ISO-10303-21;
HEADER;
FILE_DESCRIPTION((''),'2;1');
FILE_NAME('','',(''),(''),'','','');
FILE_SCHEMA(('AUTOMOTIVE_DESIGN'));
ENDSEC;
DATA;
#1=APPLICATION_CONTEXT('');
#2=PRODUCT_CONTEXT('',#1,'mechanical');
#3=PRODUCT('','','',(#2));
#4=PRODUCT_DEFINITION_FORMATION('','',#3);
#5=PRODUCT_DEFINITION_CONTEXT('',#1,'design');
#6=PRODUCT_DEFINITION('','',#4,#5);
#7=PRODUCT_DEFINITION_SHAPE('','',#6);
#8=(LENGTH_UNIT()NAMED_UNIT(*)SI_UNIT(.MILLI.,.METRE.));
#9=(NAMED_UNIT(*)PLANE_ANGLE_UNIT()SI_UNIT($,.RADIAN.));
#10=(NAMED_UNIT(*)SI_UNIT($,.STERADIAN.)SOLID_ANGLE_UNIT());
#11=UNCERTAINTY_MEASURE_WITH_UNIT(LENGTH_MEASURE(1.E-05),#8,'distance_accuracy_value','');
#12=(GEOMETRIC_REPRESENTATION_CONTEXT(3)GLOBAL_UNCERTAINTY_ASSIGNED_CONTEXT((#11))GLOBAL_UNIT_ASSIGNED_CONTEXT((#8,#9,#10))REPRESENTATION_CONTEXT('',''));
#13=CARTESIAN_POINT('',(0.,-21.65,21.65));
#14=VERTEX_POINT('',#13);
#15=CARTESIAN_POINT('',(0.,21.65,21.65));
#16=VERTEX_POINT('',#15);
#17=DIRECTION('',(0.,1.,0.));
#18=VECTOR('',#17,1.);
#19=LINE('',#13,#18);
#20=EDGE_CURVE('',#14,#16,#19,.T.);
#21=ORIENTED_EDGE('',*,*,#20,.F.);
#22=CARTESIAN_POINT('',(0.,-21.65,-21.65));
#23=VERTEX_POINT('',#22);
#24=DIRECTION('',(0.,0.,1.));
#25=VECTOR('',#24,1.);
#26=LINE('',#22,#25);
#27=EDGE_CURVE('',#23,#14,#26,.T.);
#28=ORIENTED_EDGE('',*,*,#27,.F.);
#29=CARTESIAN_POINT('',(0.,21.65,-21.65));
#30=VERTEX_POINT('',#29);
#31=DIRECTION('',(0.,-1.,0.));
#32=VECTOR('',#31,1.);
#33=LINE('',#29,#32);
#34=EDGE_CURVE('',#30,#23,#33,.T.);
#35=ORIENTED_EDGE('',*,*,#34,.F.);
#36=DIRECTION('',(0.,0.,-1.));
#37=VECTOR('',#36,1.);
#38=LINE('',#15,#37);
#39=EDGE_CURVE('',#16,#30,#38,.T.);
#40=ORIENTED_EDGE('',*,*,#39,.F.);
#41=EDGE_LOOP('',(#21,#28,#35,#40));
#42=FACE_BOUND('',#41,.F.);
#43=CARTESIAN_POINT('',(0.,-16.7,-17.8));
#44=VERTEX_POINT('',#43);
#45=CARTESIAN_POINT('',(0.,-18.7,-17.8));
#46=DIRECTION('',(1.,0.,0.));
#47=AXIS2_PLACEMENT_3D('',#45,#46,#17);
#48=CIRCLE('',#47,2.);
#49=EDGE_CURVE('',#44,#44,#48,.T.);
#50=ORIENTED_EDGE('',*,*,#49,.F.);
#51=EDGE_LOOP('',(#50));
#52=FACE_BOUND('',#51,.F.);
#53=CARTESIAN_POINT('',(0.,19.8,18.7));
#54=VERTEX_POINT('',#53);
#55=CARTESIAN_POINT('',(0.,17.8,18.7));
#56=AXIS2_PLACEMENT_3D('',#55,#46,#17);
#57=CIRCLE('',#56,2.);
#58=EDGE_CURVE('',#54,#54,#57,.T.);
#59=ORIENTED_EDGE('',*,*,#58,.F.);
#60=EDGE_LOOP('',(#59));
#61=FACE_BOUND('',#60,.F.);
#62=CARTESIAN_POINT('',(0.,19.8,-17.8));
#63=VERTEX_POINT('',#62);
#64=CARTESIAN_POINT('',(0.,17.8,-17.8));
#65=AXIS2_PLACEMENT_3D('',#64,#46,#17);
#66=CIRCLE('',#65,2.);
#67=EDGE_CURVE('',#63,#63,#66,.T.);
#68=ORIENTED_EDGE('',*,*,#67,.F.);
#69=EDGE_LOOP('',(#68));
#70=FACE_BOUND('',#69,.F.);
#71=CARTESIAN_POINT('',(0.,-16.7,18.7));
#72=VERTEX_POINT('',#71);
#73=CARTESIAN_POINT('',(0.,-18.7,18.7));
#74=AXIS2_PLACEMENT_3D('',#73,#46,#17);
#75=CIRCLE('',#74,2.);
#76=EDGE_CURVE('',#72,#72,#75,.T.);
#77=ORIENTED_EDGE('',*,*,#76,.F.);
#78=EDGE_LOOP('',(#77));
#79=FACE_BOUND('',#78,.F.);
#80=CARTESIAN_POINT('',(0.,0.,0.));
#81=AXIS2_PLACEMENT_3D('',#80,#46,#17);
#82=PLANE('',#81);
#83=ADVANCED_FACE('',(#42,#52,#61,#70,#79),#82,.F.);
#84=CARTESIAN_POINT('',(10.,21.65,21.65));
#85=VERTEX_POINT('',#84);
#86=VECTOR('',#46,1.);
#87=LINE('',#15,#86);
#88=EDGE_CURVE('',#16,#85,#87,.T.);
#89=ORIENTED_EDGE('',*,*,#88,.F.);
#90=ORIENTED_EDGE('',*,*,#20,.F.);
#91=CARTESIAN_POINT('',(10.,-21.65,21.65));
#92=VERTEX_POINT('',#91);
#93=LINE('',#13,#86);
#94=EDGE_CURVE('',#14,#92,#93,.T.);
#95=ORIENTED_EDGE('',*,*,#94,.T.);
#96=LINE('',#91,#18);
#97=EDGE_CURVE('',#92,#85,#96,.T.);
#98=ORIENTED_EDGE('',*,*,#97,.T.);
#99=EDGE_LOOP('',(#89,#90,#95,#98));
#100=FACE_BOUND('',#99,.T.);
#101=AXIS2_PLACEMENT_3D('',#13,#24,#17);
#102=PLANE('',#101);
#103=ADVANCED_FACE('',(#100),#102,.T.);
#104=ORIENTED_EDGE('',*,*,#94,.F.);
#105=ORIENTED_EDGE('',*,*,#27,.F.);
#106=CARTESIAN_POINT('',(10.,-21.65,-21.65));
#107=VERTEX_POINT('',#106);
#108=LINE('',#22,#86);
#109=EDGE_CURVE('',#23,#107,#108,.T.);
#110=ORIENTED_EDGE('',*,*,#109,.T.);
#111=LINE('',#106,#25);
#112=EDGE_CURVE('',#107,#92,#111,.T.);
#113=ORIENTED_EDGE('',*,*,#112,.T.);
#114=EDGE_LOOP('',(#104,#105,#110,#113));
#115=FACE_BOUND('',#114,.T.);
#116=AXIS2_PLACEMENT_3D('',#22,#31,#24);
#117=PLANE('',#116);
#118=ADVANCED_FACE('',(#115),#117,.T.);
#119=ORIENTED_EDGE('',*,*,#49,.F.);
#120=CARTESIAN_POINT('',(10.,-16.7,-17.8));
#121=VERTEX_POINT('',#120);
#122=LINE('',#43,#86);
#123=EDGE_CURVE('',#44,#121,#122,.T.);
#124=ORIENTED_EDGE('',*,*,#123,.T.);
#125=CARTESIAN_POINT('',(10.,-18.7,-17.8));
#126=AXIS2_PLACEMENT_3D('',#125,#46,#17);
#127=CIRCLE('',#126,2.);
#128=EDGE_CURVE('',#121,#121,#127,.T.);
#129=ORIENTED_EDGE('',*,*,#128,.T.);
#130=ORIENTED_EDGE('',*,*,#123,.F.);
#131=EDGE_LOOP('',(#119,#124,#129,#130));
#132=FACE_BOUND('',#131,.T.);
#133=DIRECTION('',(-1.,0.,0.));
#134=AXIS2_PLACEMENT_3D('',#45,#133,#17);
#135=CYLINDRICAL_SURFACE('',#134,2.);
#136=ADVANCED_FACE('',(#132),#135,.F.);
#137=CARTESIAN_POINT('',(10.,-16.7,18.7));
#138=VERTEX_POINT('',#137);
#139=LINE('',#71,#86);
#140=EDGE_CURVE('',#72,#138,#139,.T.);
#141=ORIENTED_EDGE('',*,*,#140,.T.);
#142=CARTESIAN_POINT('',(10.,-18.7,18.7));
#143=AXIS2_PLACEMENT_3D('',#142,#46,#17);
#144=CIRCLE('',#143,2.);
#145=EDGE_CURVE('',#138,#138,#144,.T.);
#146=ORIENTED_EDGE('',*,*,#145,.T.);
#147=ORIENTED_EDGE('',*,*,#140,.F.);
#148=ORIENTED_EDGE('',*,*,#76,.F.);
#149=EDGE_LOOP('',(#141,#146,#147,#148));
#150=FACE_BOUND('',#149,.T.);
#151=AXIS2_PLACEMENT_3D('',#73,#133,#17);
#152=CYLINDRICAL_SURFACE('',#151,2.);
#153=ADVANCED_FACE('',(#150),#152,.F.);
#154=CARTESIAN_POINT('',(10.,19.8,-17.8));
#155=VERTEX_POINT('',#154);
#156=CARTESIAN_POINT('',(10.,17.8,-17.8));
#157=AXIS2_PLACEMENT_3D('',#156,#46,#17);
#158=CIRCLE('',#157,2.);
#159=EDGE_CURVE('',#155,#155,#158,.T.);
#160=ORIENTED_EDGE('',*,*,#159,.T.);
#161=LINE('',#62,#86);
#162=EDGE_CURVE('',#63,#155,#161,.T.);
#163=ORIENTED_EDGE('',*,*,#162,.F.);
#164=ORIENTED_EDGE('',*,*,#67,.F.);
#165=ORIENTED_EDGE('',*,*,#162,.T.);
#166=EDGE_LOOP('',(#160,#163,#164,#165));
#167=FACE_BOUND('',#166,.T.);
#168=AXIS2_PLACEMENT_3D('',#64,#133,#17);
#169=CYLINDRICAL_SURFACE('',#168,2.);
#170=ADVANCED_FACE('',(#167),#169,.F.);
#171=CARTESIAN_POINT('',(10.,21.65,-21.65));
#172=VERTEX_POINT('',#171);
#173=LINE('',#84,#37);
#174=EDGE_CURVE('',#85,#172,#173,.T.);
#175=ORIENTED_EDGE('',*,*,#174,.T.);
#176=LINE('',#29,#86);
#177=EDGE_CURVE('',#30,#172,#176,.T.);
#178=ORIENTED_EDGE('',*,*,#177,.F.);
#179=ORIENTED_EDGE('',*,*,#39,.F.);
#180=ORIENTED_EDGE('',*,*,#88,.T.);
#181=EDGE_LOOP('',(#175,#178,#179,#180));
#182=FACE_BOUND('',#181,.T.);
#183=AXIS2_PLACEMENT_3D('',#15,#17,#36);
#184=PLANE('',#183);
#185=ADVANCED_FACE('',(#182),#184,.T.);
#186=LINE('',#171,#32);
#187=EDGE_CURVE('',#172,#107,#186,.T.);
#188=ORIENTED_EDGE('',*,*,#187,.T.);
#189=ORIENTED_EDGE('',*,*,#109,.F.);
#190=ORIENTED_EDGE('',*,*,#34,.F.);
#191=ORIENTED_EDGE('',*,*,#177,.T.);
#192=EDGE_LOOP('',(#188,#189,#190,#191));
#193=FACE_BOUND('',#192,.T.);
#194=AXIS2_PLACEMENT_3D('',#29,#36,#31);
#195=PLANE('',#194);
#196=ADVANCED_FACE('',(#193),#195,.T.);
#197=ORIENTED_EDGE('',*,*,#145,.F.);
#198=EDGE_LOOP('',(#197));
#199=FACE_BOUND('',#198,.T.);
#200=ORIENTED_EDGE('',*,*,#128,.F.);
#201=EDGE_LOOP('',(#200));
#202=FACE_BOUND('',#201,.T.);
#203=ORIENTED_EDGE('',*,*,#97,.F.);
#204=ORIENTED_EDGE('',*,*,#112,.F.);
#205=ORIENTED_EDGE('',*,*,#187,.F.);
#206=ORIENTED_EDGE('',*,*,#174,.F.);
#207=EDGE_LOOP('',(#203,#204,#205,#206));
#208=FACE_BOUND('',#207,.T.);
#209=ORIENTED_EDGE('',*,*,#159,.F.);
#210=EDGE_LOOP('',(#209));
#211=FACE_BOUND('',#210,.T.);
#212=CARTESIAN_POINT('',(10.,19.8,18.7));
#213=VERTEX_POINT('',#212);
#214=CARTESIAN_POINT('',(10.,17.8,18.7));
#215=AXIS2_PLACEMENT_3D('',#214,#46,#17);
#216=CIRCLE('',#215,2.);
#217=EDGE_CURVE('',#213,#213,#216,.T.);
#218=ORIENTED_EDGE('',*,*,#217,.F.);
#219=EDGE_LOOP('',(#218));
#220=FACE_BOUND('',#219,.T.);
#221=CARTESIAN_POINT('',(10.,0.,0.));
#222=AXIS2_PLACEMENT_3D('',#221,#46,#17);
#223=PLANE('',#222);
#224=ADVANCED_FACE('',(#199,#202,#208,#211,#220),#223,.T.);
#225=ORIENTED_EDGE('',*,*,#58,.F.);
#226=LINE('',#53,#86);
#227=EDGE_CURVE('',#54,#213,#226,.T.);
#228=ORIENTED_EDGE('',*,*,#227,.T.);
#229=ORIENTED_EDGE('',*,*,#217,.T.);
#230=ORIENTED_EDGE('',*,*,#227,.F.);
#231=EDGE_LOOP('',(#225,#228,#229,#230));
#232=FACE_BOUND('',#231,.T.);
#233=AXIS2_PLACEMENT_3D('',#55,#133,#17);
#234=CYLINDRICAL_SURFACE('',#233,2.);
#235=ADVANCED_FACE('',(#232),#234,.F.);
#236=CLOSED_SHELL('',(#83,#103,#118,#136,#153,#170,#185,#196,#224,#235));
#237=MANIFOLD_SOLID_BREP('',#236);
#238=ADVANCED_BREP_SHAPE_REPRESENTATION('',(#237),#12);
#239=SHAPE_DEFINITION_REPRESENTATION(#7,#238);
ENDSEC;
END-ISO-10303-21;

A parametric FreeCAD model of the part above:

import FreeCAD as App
import Part
import Sketcher
from FreeCAD import Vector


def add_polygon(sketch, points):
    """Adds a closed chain of lines whose ends are joined by coincident constraints."""
    first, n = sketch.GeometryCount, len(points)
    for a, b in zip(points, points[1:] + points[:1]):
        sketch.addGeometry(Part.LineSegment(App.Vector(*a, 0), App.Vector(*b, 0)), False)
    for i in range(n):
        sketch.addConstraint(Sketcher.Constraint("Coincident", first + i, 2, first + (i + 1) % n, 1))

doc = App.newDocument("Part")
body = doc.addObject("PartDesign::Body", "Body")

# Sketch on YZ plane
sketch1 = doc.addObject("Sketcher::SketchObject", "Sketch")
body.addObject(sketch1)
sketch1.AttachmentSupport = (doc.YZ_Plane, [""])
sketch1.MapMode = "FlatFace"
add_polygon(sketch1, [(21.6, 21.6), (-21.6, 21.6), (-21.6, -21.6), (21.6, -21.6)])  # lines 0-3
sketch1.addGeometry(Part.Circle(Vector(-18.7, -17.8, 0), Vector(0, 0, 1), 2), False)  # 4
sketch1.addGeometry(Part.Circle(Vector(17.8, -17.8, 0), Vector(0, 0, 1), 2), False)  # 5
sketch1.addGeometry(Part.Circle(Vector(-18.7, 18.7, 0), Vector(0, 0, 1), 2), False)  # 6
sketch1.addGeometry(Part.Circle(Vector(17.8, 18.7, 0), Vector(0, 0, 1), 2), False)  # 7
sketch1.addConstraint(Sketcher.Constraint("Horizontal", 0))
sketch1.addConstraint(Sketcher.Constraint("Vertical", 1))
sketch1.addConstraint(Sketcher.Constraint("Horizontal", 2))
sketch1.addConstraint(Sketcher.Constraint("Vertical", 3))
sketch1.addConstraint(Sketcher.Constraint("Equal", 4, 5))
sketch1.addConstraint(Sketcher.Constraint("Equal", 5, 6))
sketch1.addConstraint(Sketcher.Constraint("Equal", 6, 7))
sketch1.addConstraint(Sketcher.Constraint("Symmetric", 0, 2, 2, 2, -1, 1))
sketch1.addConstraint(Sketcher.Constraint("Horizontal", 4, 3, 5, 3))
sketch1.addConstraint(Sketcher.Constraint("Horizontal", 6, 3, 7, 3))
sketch1.addConstraint(Sketcher.Constraint("Vertical", 4, 3, 6, 3))
sketch1.addConstraint(Sketcher.Constraint("Vertical", 5, 3, 7, 3))
sketch1.addConstraint(Sketcher.Constraint("Equal", 2, 1))
sketch1.addConstraint(Sketcher.Constraint("Diameter", 4, 4.0))
sketch1.addConstraint(Sketcher.Constraint("DistanceX", 0, 2, 0, 1, 43.3))
sketch1.addConstraint(Sketcher.Constraint("DistanceY", 4, 3, -1, 1, 17.8))
sketch1.addConstraint(Sketcher.Constraint("DistanceX", -1, 1, 5, 3, 17.8))
sketch1.addConstraint(Sketcher.Constraint("DistanceX", 4, 3, 5, 3, 36.5))
sketch1.addConstraint(Sketcher.Constraint("DistanceY", 4, 3, 6, 3, 36.5))
pad1 = doc.addObject("PartDesign::Pad", "Pad")
body.addObject(pad1)
pad1.Profile = sketch1
pad1.Length = 10

doc.recompute()
